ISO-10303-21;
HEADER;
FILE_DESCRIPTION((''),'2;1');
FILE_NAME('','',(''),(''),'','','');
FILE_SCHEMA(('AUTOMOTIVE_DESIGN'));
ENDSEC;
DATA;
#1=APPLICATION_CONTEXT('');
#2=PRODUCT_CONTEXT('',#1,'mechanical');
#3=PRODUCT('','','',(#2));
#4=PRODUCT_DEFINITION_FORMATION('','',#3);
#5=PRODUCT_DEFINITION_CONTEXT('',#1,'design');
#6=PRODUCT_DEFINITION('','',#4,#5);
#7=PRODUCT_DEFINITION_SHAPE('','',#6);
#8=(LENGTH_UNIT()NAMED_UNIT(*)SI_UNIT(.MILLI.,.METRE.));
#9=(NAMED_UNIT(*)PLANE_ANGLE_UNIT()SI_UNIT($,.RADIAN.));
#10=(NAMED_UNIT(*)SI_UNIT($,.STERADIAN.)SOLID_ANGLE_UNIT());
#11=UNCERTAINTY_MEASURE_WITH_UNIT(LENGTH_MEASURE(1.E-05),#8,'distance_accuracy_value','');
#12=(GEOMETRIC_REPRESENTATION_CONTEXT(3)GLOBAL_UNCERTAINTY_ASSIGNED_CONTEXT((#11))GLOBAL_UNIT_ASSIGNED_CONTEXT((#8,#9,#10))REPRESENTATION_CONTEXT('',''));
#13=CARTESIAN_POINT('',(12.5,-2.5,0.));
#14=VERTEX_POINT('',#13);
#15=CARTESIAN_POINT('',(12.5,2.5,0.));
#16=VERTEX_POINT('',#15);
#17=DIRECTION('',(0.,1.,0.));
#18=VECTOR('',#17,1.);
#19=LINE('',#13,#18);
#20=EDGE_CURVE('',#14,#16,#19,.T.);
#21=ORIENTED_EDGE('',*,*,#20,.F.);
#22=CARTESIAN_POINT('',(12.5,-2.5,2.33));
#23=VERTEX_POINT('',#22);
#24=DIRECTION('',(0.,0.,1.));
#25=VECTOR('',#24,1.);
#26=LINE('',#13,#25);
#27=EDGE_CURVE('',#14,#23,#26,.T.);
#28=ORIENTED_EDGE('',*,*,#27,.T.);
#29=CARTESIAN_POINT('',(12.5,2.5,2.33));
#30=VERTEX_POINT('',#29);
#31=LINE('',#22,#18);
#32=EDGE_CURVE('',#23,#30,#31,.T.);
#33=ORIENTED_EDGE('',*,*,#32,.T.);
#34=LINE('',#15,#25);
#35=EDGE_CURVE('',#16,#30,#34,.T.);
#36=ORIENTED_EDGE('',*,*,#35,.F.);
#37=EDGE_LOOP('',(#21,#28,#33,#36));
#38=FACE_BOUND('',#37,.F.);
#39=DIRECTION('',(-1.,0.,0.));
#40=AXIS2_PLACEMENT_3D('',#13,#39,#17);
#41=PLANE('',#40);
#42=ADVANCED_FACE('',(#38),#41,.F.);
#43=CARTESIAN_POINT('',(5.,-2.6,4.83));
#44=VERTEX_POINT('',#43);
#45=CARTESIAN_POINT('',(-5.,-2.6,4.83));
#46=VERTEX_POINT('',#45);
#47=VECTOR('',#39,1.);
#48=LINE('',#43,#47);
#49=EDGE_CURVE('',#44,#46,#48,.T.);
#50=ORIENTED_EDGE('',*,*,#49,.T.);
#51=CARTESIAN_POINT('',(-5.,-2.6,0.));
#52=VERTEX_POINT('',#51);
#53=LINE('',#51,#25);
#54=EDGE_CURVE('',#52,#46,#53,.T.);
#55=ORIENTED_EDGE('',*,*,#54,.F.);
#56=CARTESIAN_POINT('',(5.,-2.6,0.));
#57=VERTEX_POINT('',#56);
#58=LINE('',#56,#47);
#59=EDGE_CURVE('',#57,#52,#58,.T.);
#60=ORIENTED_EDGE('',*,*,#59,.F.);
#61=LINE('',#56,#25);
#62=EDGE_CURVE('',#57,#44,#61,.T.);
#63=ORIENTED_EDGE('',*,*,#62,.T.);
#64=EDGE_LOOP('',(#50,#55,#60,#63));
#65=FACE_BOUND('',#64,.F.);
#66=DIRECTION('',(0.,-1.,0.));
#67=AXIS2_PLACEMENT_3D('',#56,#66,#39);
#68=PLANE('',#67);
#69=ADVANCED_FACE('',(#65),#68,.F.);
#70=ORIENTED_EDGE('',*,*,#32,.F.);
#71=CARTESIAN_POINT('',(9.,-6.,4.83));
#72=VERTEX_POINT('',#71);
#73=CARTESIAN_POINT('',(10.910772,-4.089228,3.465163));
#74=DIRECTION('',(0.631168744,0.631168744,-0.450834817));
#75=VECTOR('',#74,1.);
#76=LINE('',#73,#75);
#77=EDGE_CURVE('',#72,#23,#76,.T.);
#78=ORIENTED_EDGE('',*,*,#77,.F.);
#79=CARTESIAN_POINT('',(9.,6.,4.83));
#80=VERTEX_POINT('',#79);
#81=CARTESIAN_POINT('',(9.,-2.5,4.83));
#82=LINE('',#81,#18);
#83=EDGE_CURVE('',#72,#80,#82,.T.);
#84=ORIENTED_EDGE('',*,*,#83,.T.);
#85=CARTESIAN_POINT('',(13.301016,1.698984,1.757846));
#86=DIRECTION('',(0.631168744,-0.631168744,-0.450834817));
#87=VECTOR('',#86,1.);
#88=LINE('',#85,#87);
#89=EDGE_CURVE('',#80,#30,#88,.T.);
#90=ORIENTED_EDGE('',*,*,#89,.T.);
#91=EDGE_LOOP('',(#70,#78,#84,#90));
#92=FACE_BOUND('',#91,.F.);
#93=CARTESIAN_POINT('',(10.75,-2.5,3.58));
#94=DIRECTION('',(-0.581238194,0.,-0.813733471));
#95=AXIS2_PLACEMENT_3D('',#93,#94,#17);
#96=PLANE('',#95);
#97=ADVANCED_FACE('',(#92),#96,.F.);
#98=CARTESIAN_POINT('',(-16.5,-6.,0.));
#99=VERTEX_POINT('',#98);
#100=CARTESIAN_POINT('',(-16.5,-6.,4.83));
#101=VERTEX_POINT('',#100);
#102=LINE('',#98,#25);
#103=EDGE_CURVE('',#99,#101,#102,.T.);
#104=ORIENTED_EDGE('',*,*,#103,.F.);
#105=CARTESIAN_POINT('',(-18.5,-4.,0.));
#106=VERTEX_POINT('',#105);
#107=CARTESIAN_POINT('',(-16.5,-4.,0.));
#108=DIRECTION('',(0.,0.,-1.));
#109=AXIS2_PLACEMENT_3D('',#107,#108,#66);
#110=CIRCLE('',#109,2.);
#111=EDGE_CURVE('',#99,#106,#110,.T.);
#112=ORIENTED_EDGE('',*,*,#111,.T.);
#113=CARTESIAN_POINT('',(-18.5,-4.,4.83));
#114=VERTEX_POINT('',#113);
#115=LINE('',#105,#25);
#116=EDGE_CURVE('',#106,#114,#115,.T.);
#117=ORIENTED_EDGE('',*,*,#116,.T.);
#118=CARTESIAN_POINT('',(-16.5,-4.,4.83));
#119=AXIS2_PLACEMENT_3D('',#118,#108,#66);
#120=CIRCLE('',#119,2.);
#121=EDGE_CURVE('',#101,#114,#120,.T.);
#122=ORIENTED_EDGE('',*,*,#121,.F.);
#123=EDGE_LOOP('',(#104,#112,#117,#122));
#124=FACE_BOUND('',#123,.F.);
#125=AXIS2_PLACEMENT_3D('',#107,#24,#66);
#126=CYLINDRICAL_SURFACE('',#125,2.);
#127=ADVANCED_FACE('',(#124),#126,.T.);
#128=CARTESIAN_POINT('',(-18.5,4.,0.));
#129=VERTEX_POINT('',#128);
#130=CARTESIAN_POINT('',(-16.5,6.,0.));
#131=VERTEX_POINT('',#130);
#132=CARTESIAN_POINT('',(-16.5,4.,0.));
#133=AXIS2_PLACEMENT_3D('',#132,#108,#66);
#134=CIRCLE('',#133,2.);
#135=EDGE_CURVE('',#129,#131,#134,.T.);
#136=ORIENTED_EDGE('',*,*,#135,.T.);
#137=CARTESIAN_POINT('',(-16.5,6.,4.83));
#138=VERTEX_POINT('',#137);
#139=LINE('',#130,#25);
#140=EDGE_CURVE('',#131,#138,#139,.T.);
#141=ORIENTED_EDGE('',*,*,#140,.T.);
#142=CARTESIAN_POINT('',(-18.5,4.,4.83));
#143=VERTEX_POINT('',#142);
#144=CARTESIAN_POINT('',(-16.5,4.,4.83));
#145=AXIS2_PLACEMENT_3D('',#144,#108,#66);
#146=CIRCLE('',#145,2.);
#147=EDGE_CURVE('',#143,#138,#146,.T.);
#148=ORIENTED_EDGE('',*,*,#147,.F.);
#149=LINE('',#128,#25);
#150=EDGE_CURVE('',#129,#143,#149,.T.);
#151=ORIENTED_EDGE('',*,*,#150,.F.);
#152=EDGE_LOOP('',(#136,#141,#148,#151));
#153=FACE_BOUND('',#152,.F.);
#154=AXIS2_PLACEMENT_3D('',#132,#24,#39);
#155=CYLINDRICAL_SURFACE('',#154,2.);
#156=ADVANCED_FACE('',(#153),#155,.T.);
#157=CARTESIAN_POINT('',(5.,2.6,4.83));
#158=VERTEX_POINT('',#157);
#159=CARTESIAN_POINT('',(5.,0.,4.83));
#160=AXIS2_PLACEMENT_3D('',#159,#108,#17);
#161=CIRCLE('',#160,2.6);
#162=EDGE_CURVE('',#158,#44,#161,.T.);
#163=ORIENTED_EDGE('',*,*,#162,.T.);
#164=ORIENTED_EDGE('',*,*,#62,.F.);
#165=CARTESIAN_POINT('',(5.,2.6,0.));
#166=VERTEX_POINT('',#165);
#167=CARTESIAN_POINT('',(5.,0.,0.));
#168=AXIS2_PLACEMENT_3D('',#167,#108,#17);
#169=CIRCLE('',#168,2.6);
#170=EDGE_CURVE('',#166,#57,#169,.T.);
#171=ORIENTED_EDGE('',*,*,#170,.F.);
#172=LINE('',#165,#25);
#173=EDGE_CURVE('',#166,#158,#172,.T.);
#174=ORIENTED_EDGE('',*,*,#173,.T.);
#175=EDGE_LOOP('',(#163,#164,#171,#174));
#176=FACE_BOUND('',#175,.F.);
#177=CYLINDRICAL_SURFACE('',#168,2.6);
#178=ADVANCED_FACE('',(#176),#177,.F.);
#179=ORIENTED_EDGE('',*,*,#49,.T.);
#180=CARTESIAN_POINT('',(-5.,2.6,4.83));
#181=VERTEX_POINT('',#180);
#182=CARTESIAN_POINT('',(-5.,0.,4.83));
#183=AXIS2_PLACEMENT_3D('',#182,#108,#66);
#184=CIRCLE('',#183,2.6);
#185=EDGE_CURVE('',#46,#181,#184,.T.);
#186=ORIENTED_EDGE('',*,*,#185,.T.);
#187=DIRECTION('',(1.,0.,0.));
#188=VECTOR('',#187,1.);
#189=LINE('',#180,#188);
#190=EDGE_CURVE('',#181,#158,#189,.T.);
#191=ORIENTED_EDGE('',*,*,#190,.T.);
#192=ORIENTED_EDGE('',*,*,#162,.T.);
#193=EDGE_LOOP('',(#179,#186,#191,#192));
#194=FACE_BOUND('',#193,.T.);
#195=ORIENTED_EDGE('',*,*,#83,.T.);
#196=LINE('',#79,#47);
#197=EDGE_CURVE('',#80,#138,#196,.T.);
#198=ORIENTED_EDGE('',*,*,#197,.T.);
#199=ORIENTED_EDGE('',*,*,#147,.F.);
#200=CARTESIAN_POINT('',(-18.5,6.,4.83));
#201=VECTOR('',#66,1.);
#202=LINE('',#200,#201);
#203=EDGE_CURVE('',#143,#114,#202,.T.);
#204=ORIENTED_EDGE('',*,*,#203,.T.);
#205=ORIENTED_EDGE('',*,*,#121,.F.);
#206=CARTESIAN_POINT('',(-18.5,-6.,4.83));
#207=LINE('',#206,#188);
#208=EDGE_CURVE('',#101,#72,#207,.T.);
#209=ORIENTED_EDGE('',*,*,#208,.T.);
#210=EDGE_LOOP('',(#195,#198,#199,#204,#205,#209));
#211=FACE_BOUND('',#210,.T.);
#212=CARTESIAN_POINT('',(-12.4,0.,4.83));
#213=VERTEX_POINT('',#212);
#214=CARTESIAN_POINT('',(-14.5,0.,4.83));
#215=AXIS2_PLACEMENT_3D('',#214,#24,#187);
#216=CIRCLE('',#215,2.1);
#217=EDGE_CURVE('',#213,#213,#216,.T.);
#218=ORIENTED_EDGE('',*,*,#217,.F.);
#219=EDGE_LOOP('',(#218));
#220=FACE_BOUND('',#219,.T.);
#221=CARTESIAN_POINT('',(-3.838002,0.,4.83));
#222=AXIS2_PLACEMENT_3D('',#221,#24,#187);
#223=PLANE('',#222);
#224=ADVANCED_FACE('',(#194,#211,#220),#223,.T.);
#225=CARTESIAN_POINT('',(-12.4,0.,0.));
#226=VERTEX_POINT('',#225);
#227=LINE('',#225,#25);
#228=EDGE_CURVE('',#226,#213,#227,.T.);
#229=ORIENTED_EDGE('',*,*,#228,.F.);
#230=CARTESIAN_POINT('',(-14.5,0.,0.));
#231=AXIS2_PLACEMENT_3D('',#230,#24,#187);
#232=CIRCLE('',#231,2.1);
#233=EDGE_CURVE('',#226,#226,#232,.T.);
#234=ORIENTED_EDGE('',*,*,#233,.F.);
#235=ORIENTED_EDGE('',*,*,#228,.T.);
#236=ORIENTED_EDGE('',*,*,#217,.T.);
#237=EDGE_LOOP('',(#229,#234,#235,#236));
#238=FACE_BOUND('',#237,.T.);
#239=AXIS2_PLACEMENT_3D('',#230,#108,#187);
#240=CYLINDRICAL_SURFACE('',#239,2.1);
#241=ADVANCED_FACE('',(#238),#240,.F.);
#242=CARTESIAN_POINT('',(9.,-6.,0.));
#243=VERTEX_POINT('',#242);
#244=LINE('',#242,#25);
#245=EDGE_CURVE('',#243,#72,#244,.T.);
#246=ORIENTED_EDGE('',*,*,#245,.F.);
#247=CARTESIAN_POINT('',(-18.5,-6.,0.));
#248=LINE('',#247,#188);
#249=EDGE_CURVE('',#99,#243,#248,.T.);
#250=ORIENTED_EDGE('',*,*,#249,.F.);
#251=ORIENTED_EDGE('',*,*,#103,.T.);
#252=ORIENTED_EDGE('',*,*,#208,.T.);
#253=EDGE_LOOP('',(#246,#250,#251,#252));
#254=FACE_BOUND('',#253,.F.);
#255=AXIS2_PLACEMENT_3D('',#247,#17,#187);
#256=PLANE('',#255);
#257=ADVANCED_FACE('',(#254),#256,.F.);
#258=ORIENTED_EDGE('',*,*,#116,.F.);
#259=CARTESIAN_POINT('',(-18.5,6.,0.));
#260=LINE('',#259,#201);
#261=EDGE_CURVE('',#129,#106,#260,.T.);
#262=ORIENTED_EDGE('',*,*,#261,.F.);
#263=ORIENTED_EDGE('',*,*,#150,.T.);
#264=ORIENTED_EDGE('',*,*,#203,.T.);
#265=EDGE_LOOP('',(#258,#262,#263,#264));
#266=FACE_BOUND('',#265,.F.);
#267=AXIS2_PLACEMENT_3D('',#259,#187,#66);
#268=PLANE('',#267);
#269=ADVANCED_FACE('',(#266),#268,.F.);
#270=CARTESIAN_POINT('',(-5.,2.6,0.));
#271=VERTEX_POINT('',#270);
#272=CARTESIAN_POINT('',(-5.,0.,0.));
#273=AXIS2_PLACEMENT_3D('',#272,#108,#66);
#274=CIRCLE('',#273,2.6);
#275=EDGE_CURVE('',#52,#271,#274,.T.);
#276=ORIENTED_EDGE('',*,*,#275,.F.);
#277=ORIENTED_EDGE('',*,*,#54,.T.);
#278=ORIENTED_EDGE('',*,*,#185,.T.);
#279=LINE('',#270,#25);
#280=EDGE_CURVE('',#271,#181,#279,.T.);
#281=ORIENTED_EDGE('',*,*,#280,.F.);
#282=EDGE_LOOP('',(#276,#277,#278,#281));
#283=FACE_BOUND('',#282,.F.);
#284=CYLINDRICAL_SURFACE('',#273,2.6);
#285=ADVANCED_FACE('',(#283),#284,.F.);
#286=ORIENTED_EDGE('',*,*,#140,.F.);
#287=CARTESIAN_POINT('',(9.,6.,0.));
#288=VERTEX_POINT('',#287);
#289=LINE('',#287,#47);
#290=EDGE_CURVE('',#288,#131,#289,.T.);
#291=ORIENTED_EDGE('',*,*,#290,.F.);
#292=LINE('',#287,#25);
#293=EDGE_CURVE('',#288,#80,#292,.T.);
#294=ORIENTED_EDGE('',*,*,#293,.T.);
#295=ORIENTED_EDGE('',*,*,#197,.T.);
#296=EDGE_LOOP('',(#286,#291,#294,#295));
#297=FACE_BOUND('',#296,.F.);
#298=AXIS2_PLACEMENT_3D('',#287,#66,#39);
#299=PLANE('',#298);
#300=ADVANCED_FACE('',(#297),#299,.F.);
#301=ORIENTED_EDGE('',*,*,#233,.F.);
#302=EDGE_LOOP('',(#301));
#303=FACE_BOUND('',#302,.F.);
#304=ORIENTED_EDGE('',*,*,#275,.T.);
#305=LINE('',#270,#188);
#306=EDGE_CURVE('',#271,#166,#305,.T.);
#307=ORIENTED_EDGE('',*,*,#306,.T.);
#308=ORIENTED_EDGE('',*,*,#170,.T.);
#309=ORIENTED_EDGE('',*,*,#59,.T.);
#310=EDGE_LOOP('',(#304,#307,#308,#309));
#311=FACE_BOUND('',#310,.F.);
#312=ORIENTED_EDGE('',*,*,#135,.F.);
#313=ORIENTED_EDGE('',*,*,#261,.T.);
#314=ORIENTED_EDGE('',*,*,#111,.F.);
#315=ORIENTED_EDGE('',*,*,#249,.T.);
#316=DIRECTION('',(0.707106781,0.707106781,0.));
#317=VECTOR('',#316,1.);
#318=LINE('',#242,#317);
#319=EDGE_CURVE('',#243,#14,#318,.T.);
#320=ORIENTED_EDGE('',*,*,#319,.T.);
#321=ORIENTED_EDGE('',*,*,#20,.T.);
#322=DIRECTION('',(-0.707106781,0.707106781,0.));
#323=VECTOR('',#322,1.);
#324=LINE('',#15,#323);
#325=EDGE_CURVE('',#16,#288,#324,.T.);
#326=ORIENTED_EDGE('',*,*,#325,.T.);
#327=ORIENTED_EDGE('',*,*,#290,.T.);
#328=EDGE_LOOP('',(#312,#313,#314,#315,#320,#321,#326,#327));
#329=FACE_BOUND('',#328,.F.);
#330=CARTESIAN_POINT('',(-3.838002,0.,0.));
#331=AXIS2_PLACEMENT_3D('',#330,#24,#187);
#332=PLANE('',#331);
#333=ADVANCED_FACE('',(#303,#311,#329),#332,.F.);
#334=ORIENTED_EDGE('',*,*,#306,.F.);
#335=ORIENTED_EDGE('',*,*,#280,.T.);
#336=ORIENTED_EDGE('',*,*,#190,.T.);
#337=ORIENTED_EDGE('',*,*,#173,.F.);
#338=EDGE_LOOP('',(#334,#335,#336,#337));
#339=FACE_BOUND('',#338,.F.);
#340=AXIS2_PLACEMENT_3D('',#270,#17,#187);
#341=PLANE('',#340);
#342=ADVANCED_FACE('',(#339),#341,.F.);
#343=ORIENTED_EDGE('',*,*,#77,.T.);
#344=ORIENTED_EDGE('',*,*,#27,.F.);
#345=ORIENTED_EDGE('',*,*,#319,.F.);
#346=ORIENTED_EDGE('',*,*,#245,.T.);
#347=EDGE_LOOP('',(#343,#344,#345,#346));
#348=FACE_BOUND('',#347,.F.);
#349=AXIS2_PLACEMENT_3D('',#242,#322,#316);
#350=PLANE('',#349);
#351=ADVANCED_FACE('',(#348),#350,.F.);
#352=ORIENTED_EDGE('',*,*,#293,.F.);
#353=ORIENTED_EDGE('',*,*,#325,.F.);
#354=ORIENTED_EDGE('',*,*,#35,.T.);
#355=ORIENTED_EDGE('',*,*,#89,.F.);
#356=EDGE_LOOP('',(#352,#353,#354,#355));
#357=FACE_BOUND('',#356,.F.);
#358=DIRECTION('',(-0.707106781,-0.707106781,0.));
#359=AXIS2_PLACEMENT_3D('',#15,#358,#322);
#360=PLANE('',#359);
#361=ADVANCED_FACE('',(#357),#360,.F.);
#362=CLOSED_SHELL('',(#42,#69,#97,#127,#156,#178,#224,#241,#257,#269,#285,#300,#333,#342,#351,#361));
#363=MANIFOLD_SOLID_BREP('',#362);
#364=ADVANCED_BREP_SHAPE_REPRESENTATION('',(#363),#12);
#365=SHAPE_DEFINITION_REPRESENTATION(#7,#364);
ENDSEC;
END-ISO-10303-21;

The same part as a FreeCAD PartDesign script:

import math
import FreeCAD as App
import Part
import Sketcher
Q = App.Units.Quantity


def edges_at(feature, points):
    """Names of the edges that pass closest to the given points."""
    edges = feature.Shape.Edges
    near = lambda p: min(range(len(edges)), key=lambda i: edges[i].distToShape(Part.Vertex(*p))[0])
    return sorted({f"Edge{near(p) + 1}" for p in points})


def add_polygon(sketch, points):
    """Adds a closed chain of lines whose ends are joined by coincident constraints."""
    first, n = sketch.GeometryCount, len(points)
    for a, b in zip(points, points[1:] + points[:1]):
        sketch.addGeometry(Part.LineSegment(App.Vector(*a, 0), App.Vector(*b, 0)), False)
    for i in range(n):
        sketch.addConstraint(Sketcher.Constraint("Coincident", first + i, 2, first + (i + 1) % n, 1))

doc = App.newDocument("Part")
body = doc.addObject("PartDesign::Body", "Body")

# Sketch on XY plane
sketch1 = body.newObject("Sketcher::SketchObject", "Sketch")
sketch1.AttachmentSupport = (doc.getObject("XY_Plane"), [""])
sketch1.MapMode = "FlatFace"
add_polygon(sketch1, [(9, -6), (12.5, -2.5), (12.5, 2.5), (9, 6), (-18.5, 6), (-18.5, -6)])  # lines 0-5
sketch1.addGeometry(Part.Circle(App.Vector(-14.5, 0, 0), App.Vector(0, 0, 1), 2.1), False)  # 6
sketch1.addGeometry(Part.ArcOfCircle(Part.Circle(App.Vector(5, 0, 0), App.Vector(0, 0, 1), 2.6), math.radians(-90), math.radians(90)), False)  # 7
sketch1.addGeometry(Part.LineSegment(App.Vector(5, -2.6, 0), App.Vector(-5, -2.6, 0)), False)  # 8
sketch1.addGeometry(Part.ArcOfCircle(Part.Circle(App.Vector(-5, 0, 0), App.Vector(0, 0, 1), 2.6), math.radians(90), math.radians(270)), False)  # 9
sketch1.addGeometry(Part.LineSegment(App.Vector(-5, 2.6, 0), App.Vector(5, 2.6, 0)), False)  # 10
sketch1.addConstraint([
    Sketcher.Constraint("Tangent", 7, 1, 8, 1),
    Sketcher.Constraint("Tangent", 8, 2, 9, 2),
    Sketcher.Constraint("Tangent", 9, 1, 10, 1),
    Sketcher.Constraint("Tangent", 10, 2, 7, 2),
    Sketcher.Constraint("Vertical", 1),
    Sketcher.Constraint("Horizontal", 3),
    Sketcher.Constraint("Vertical", 4),
    Sketcher.Constraint("Horizontal", 5),
    Sketcher.Constraint("Horizontal", 8),
    Sketcher.Constraint("Horizontal", 10),
    Sketcher.Constraint("Symmetric", 7, 3, 9, 3, -1, 1),
    Sketcher.Constraint("Symmetric", 2, 2, 5, 2, -1),
    Sketcher.Constraint("PointOnObject", 6, 3, -1),
    Sketcher.Constraint("Perpendicular", 0, 2),
    Sketcher.Constraint("Equal", 0, 2),
    Sketcher.Constraint("Diameter", 6, Q("4.2 mm")),
    Sketcher.Constraint("Radius", 7, Q("2.6 mm")),
    Sketcher.Constraint("DistanceX", 8, 2, 8, 1, Q("10 mm")),
    Sketcher.Constraint("DistanceY", 1, 1, 1, 2, Q("5 mm")),
    Sketcher.Constraint("DistanceY", 4, 2, 4, 1, Q("12 mm")),
    Sketcher.Constraint("DistanceX", 3, 2, 3, 1, Q("27.5 mm")),
    Sketcher.Constraint("DistanceX", -1, 1, 2, 2, Q("9 mm")),
    Sketcher.Constraint("DistanceX", 6, 3, 0, 2, Q("27 mm")),
])
pad1 = body.newObject("PartDesign::Pad", "Pad")
pad1.Profile = sketch1
pad1.Length = 4.83
doc.recompute()

chamfer = body.newObject("PartDesign::Chamfer", "Chamfer")
chamfer.Base = (pad1, edges_at(pad1, [(12.5, 0, 4.83)]))
chamfer.ChamferType = "Two distances"
chamfer.Size = 3.5
chamfer.Size2 = 2.5
chamfer.FlipDirection = True
doc.recompute()

fillet = body.newObject("PartDesign::Fillet", "Fillet")
fillet.Base = (chamfer, edges_at(chamfer, [(-18.5, -6, 2.415)]))
fillet.Radius = 2
doc.recompute()

fillet2 = body.newObject("PartDesign::Fillet", "Fillet001")
fillet2.Base = (fillet, edges_at(fillet, [(-18.5, 6, 2.415)]))
fillet2.Radius = 2

doc.recompute()
